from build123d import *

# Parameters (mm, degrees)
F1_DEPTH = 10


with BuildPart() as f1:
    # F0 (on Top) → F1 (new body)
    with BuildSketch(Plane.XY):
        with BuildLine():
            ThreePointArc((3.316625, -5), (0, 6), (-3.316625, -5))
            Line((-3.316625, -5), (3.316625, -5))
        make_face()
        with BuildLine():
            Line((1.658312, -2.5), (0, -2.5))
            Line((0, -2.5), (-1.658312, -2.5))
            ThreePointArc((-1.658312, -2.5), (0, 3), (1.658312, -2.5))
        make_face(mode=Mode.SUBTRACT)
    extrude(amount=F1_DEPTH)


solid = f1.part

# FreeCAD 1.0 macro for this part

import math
import FreeCAD as App
import Part
import Sketcher

V = App.Vector
Q = App.Units.Quantity

doc = App.newDocument("Part")
body = doc.addObject("PartDesign::Body", "Body")

sketch1 = body.newObject("Sketcher::SketchObject", "Sketch")
sketch1.AttachmentSupport = (doc.getObject("XY_Plane"), [""])
sketch1.MapMode = "FlatFace"
sketch1.addGeometry(Part.ArcOfCircle(Part.Circle(V(0, 0, 0), V(0, 0, 1), 6), math.radians(-56.442688), math.radians(236.442688)), False)
sketch1.addGeometry(Part.LineSegment(V(-3.316625, -5, 0), V(3.316625, -5, 0)), False)
sketch1.addGeometry(Part.ArcOfCircle(Part.Circle(V(0, 0, 0), V(0, 0, 1), 3), math.radians(-56.442698), math.radians(236.442698)), False)
sketch1.addGeometry(Part.LineSegment(V(1.658312, -2.5, 0), V(-1.658312, -2.5, 0)), False)
sketch1.addConstraint(Sketcher.Constraint("Coincident", 0, 1, 1, 2))
sketch1.addConstraint(Sketcher.Constraint("Coincident", 1, 1, 0, 2))
sketch1.addConstraint(Sketcher.Constraint("Coincident", 2, 1, 3, 1))
sketch1.addConstraint(Sketcher.Constraint("Coincident", 3, 2, 2, 2))
sketch1.addConstraint(Sketcher.Constraint("Horizontal", 1))
sketch1.addConstraint(Sketcher.Constraint("Horizontal", 3))
sketch1.addConstraint(Sketcher.Constraint("Coincident", 0, 3, -1, 1))
sketch1.addConstraint(Sketcher.Constraint("Coincident", 2, 3, -1, 1))
sketch1.addConstraint(Sketcher.Constraint("Radius", 0, Q("6 mm")))
sketch1.addConstraint(Sketcher.Constraint("Radius", 2, Q("3 mm")))
sketch1.addConstraint(Sketcher.Constraint("DistanceY", 0, 1, -1, 1, Q("5 mm")))
sketch1.addConstraint(Sketcher.Constraint("DistanceY", 2, 1, -1, 1, Q("2.5 mm")))
pad1 = body.newObject("PartDesign::Pad", "Pad")
pad1.Profile = sketch1
pad1.Length = 10

doc.recompute()
